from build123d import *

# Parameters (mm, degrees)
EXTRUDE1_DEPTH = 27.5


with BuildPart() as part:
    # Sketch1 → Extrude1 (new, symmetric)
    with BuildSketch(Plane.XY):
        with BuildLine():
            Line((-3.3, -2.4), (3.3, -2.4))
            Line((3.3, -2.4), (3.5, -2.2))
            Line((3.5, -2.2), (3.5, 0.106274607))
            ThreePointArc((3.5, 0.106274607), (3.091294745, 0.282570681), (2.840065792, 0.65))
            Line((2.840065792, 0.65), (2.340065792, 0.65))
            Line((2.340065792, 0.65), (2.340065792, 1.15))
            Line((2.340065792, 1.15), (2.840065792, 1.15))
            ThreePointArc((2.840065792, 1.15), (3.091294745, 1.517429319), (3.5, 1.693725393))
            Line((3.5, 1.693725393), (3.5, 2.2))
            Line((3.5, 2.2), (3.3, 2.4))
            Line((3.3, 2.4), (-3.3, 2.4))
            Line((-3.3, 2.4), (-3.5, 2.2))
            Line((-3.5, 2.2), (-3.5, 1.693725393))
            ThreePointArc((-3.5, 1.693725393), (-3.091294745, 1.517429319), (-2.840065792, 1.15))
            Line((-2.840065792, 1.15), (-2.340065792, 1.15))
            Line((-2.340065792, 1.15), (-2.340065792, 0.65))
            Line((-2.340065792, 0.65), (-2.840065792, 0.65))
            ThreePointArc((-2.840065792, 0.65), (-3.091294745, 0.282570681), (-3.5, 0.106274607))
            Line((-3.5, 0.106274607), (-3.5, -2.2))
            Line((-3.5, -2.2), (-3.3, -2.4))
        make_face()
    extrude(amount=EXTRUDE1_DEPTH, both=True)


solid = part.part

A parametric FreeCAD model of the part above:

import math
import FreeCAD as App
import Part
import Sketcher
Q = App.Units.Quantity

doc = App.newDocument("Part")
body = doc.addObject("PartDesign::Body", "Body")

# Sketch on XY plane
sketch1 = doc.addObject("Sketcher::SketchObject", "Sketch")
body.addObject(sketch1)
sketch1.AttachmentSupport = (doc.XY_Plane, [""])
sketch1.MapMode = "FlatFace"
sketch1.addGeometry([
    Part.LineSegment(App.Vector(-3.3, -2.4, 0), App.Vector(3.3, -2.4, 0)),  # 0
    Part.LineSegment(App.Vector(3.3, -2.4, 0), App.Vector(3.5, -2.2, 0)),  # 1
    Part.LineSegment(App.Vector(3.5, -2.2, 0), App.Vector(3.5, 0.106275, 0)),  # 2
    Part.ArcOfCircle(Part.Circle(App.Vector(3.6, 0.9, 0), App.Vector(0, 0, 1), 0.8), math.radians(-161.790043), math.radians(-97.180756)),  # 3
    Part.LineSegment(App.Vector(2.840066, 0.65, 0), App.Vector(2.340066, 0.65, 0)),  # 4
    Part.LineSegment(App.Vector(2.340066, 0.65, 0), App.Vector(2.340066, 1.15, 0)),  # 5
    Part.LineSegment(App.Vector(2.340066, 1.15, 0), App.Vector(2.840066, 1.15, 0)),  # 6
    Part.ArcOfCircle(Part.Circle(App.Vector(3.6, 0.9, 0), App.Vector(0, 0, 1), 0.8), math.radians(97.180756), math.radians(161.790043)),  # 7
    Part.LineSegment(App.Vector(3.5, 1.693725, 0), App.Vector(3.5, 2.2, 0)),  # 8
    Part.LineSegment(App.Vector(3.5, 2.2, 0), App.Vector(3.3, 2.4, 0)),  # 9
    Part.LineSegment(App.Vector(3.3, 2.4, 0), App.Vector(-3.3, 2.4, 0)),  # 10
    Part.LineSegment(App.Vector(-3.3, 2.4, 0), App.Vector(-3.5, 2.2, 0)),  # 11
    Part.LineSegment(App.Vector(-3.5, 2.2, 0), App.Vector(-3.5, 1.693725, 0)),  # 12
    Part.ArcOfCircle(Part.Circle(App.Vector(-3.6, 0.9, 0), App.Vector(0, 0, 1), 0.8), math.radians(18.209957), math.radians(82.819244)),  # 13
    Part.LineSegment(App.Vector(-2.840066, 1.15, 0), App.Vector(-2.340066, 1.15, 0)),  # 14
    Part.LineSegment(App.Vector(-2.340066, 1.15, 0), App.Vector(-2.340066, 0.65, 0)),  # 15
    Part.LineSegment(App.Vector(-2.340066, 0.65, 0), App.Vector(-2.840066, 0.65, 0)),  # 16
    Part.ArcOfCircle(Part.Circle(App.Vector(-3.6, 0.9, 0), App.Vector(0, 0, 1), 0.8), math.radians(-82.819244), math.radians(-18.209957)),  # 17
    Part.LineSegment(App.Vector(-3.5, 0.106275, 0), App.Vector(-3.5, -2.2, 0)),  # 18
    Part.LineSegment(App.Vector(-3.5, -2.2, 0), App.Vector(-3.3, -2.4, 0)),  # 19
], False)
sketch1.addConstraint([
    Sketcher.Constraint("Coincident", 0, 2, 1, 1),
    Sketcher.Constraint("Coincident", 1, 2, 2, 1),
    Sketcher.Constraint("Coincident", 2, 2, 3, 2),
    Sketcher.Constraint("Coincident", 3, 1, 4, 1),
    Sketcher.Constraint("Coincident", 4, 2, 5, 1),
    Sketcher.Constraint("Coincident", 5, 2, 6, 1),
    Sketcher.Constraint("Coincident", 6, 2, 7, 2),
    Sketcher.Constraint("Coincident", 7, 1, 8, 1),
    Sketcher.Constraint("Coincident", 8, 2, 9, 1),
    Sketcher.Constraint("Coincident", 9, 2, 10, 1),
    Sketcher.Constraint("Coincident", 10, 2, 11, 1),
    Sketcher.Constraint("Coincident", 11, 2, 12, 1),
    Sketcher.Constraint("Coincident", 12, 2, 13, 2),
    Sketcher.Constraint("Coincident", 13, 1, 14, 1),
    Sketcher.Constraint("Coincident", 14, 2, 15, 1),
    Sketcher.Constraint("Coincident", 15, 2, 16, 1),
    Sketcher.Constraint("Coincident", 16, 2, 17, 2),
    Sketcher.Constraint("Coincident", 17, 1, 18, 1),
    Sketcher.Constraint("Coincident", 18, 2, 19, 1),
    Sketcher.Constraint("Coincident", 19, 2, 0, 1),
    Sketcher.Constraint("Horizontal", 0),
    Sketcher.Constraint("Vertical", 2),
    Sketcher.Constraint("Horizontal", 4),
    Sketcher.Constraint("Vertical", 5),
    Sketcher.Constraint("Horizontal", 6),
    Sketcher.Constraint("Vertical", 8),
    Sketcher.Constraint("Horizontal", 10),
    Sketcher.Constraint("Vertical", 12),
    Sketcher.Constraint("Horizontal", 14),
    Sketcher.Constraint("Vertical", 15),
    Sketcher.Constraint("Horizontal", 16),
    Sketcher.Constraint("Vertical", 18),
    Sketcher.Constraint("Coincident", 7, 3, 3, 3),
    Sketcher.Constraint("Coincident", 17, 3, 13, 3),
    Sketcher.Constraint("Equal", 3, 7),
    Sketcher.Constraint("Equal", 7, 13),
    Sketcher.Constraint("Equal", 13, 17),
    Sketcher.Constraint("Symmetric", 0, 2, 10, 2, -1, 1),
    Sketcher.Constraint("Symmetric", 1, 2, 11, 2, -1, 1),
    Sketcher.Constraint("Symmetric", 8, 2, 18, 2, -1, 1),
    Sketcher.Constraint("Symmetric", 3, 3, 13, 3, -2),
    Sketcher.Constraint("Symmetric", 8, 2, 11, 2, -2),
    Sketcher.Constraint("Symmetric", 5, 2, 14, 2, -2),
    Sketcher.Constraint("Perpendicular", 1, 9),
    Sketcher.Constraint("Perpendicular", 11, 19),
    Sketcher.Constraint("Horizontal", 4, 2, 15, 2),
    Sketcher.Constraint("Vertical", 3, 1, 6, 2),
    Sketcher.Constraint("Vertical", 0, 2, 9, 2),
    Sketcher.Constraint("Equal", 16, 5),
    Sketcher.Constraint("Radius", 3, Q("0.8 mm")),
    Sketcher.Constraint("DistanceX", 0, 1, 0, 2, Q("6.6 mm")),
    Sketcher.Constraint("DistanceX", 4, 2, 4, 1, Q("0.5 mm")),
    Sketcher.Constraint("DistanceX", -1, 1, 3, 3, Q("3.6 mm")),
    Sketcher.Constraint("DistanceY", -1, 1, 3, 3, Q("0.9 mm")),
    Sketcher.Constraint("DistanceY", 0, 2, -1, 1, Q("2.4 mm")),
    Sketcher.Constraint("DistanceX", -1, 1, 1, 2, Q("3.5 mm")),
])
pad1 = doc.addObject("PartDesign::Pad", "Pad")
body.addObject(pad1)
pad1.Profile = sketch1
pad1.Length = 55
pad1.Midplane = True

doc.recompute()
